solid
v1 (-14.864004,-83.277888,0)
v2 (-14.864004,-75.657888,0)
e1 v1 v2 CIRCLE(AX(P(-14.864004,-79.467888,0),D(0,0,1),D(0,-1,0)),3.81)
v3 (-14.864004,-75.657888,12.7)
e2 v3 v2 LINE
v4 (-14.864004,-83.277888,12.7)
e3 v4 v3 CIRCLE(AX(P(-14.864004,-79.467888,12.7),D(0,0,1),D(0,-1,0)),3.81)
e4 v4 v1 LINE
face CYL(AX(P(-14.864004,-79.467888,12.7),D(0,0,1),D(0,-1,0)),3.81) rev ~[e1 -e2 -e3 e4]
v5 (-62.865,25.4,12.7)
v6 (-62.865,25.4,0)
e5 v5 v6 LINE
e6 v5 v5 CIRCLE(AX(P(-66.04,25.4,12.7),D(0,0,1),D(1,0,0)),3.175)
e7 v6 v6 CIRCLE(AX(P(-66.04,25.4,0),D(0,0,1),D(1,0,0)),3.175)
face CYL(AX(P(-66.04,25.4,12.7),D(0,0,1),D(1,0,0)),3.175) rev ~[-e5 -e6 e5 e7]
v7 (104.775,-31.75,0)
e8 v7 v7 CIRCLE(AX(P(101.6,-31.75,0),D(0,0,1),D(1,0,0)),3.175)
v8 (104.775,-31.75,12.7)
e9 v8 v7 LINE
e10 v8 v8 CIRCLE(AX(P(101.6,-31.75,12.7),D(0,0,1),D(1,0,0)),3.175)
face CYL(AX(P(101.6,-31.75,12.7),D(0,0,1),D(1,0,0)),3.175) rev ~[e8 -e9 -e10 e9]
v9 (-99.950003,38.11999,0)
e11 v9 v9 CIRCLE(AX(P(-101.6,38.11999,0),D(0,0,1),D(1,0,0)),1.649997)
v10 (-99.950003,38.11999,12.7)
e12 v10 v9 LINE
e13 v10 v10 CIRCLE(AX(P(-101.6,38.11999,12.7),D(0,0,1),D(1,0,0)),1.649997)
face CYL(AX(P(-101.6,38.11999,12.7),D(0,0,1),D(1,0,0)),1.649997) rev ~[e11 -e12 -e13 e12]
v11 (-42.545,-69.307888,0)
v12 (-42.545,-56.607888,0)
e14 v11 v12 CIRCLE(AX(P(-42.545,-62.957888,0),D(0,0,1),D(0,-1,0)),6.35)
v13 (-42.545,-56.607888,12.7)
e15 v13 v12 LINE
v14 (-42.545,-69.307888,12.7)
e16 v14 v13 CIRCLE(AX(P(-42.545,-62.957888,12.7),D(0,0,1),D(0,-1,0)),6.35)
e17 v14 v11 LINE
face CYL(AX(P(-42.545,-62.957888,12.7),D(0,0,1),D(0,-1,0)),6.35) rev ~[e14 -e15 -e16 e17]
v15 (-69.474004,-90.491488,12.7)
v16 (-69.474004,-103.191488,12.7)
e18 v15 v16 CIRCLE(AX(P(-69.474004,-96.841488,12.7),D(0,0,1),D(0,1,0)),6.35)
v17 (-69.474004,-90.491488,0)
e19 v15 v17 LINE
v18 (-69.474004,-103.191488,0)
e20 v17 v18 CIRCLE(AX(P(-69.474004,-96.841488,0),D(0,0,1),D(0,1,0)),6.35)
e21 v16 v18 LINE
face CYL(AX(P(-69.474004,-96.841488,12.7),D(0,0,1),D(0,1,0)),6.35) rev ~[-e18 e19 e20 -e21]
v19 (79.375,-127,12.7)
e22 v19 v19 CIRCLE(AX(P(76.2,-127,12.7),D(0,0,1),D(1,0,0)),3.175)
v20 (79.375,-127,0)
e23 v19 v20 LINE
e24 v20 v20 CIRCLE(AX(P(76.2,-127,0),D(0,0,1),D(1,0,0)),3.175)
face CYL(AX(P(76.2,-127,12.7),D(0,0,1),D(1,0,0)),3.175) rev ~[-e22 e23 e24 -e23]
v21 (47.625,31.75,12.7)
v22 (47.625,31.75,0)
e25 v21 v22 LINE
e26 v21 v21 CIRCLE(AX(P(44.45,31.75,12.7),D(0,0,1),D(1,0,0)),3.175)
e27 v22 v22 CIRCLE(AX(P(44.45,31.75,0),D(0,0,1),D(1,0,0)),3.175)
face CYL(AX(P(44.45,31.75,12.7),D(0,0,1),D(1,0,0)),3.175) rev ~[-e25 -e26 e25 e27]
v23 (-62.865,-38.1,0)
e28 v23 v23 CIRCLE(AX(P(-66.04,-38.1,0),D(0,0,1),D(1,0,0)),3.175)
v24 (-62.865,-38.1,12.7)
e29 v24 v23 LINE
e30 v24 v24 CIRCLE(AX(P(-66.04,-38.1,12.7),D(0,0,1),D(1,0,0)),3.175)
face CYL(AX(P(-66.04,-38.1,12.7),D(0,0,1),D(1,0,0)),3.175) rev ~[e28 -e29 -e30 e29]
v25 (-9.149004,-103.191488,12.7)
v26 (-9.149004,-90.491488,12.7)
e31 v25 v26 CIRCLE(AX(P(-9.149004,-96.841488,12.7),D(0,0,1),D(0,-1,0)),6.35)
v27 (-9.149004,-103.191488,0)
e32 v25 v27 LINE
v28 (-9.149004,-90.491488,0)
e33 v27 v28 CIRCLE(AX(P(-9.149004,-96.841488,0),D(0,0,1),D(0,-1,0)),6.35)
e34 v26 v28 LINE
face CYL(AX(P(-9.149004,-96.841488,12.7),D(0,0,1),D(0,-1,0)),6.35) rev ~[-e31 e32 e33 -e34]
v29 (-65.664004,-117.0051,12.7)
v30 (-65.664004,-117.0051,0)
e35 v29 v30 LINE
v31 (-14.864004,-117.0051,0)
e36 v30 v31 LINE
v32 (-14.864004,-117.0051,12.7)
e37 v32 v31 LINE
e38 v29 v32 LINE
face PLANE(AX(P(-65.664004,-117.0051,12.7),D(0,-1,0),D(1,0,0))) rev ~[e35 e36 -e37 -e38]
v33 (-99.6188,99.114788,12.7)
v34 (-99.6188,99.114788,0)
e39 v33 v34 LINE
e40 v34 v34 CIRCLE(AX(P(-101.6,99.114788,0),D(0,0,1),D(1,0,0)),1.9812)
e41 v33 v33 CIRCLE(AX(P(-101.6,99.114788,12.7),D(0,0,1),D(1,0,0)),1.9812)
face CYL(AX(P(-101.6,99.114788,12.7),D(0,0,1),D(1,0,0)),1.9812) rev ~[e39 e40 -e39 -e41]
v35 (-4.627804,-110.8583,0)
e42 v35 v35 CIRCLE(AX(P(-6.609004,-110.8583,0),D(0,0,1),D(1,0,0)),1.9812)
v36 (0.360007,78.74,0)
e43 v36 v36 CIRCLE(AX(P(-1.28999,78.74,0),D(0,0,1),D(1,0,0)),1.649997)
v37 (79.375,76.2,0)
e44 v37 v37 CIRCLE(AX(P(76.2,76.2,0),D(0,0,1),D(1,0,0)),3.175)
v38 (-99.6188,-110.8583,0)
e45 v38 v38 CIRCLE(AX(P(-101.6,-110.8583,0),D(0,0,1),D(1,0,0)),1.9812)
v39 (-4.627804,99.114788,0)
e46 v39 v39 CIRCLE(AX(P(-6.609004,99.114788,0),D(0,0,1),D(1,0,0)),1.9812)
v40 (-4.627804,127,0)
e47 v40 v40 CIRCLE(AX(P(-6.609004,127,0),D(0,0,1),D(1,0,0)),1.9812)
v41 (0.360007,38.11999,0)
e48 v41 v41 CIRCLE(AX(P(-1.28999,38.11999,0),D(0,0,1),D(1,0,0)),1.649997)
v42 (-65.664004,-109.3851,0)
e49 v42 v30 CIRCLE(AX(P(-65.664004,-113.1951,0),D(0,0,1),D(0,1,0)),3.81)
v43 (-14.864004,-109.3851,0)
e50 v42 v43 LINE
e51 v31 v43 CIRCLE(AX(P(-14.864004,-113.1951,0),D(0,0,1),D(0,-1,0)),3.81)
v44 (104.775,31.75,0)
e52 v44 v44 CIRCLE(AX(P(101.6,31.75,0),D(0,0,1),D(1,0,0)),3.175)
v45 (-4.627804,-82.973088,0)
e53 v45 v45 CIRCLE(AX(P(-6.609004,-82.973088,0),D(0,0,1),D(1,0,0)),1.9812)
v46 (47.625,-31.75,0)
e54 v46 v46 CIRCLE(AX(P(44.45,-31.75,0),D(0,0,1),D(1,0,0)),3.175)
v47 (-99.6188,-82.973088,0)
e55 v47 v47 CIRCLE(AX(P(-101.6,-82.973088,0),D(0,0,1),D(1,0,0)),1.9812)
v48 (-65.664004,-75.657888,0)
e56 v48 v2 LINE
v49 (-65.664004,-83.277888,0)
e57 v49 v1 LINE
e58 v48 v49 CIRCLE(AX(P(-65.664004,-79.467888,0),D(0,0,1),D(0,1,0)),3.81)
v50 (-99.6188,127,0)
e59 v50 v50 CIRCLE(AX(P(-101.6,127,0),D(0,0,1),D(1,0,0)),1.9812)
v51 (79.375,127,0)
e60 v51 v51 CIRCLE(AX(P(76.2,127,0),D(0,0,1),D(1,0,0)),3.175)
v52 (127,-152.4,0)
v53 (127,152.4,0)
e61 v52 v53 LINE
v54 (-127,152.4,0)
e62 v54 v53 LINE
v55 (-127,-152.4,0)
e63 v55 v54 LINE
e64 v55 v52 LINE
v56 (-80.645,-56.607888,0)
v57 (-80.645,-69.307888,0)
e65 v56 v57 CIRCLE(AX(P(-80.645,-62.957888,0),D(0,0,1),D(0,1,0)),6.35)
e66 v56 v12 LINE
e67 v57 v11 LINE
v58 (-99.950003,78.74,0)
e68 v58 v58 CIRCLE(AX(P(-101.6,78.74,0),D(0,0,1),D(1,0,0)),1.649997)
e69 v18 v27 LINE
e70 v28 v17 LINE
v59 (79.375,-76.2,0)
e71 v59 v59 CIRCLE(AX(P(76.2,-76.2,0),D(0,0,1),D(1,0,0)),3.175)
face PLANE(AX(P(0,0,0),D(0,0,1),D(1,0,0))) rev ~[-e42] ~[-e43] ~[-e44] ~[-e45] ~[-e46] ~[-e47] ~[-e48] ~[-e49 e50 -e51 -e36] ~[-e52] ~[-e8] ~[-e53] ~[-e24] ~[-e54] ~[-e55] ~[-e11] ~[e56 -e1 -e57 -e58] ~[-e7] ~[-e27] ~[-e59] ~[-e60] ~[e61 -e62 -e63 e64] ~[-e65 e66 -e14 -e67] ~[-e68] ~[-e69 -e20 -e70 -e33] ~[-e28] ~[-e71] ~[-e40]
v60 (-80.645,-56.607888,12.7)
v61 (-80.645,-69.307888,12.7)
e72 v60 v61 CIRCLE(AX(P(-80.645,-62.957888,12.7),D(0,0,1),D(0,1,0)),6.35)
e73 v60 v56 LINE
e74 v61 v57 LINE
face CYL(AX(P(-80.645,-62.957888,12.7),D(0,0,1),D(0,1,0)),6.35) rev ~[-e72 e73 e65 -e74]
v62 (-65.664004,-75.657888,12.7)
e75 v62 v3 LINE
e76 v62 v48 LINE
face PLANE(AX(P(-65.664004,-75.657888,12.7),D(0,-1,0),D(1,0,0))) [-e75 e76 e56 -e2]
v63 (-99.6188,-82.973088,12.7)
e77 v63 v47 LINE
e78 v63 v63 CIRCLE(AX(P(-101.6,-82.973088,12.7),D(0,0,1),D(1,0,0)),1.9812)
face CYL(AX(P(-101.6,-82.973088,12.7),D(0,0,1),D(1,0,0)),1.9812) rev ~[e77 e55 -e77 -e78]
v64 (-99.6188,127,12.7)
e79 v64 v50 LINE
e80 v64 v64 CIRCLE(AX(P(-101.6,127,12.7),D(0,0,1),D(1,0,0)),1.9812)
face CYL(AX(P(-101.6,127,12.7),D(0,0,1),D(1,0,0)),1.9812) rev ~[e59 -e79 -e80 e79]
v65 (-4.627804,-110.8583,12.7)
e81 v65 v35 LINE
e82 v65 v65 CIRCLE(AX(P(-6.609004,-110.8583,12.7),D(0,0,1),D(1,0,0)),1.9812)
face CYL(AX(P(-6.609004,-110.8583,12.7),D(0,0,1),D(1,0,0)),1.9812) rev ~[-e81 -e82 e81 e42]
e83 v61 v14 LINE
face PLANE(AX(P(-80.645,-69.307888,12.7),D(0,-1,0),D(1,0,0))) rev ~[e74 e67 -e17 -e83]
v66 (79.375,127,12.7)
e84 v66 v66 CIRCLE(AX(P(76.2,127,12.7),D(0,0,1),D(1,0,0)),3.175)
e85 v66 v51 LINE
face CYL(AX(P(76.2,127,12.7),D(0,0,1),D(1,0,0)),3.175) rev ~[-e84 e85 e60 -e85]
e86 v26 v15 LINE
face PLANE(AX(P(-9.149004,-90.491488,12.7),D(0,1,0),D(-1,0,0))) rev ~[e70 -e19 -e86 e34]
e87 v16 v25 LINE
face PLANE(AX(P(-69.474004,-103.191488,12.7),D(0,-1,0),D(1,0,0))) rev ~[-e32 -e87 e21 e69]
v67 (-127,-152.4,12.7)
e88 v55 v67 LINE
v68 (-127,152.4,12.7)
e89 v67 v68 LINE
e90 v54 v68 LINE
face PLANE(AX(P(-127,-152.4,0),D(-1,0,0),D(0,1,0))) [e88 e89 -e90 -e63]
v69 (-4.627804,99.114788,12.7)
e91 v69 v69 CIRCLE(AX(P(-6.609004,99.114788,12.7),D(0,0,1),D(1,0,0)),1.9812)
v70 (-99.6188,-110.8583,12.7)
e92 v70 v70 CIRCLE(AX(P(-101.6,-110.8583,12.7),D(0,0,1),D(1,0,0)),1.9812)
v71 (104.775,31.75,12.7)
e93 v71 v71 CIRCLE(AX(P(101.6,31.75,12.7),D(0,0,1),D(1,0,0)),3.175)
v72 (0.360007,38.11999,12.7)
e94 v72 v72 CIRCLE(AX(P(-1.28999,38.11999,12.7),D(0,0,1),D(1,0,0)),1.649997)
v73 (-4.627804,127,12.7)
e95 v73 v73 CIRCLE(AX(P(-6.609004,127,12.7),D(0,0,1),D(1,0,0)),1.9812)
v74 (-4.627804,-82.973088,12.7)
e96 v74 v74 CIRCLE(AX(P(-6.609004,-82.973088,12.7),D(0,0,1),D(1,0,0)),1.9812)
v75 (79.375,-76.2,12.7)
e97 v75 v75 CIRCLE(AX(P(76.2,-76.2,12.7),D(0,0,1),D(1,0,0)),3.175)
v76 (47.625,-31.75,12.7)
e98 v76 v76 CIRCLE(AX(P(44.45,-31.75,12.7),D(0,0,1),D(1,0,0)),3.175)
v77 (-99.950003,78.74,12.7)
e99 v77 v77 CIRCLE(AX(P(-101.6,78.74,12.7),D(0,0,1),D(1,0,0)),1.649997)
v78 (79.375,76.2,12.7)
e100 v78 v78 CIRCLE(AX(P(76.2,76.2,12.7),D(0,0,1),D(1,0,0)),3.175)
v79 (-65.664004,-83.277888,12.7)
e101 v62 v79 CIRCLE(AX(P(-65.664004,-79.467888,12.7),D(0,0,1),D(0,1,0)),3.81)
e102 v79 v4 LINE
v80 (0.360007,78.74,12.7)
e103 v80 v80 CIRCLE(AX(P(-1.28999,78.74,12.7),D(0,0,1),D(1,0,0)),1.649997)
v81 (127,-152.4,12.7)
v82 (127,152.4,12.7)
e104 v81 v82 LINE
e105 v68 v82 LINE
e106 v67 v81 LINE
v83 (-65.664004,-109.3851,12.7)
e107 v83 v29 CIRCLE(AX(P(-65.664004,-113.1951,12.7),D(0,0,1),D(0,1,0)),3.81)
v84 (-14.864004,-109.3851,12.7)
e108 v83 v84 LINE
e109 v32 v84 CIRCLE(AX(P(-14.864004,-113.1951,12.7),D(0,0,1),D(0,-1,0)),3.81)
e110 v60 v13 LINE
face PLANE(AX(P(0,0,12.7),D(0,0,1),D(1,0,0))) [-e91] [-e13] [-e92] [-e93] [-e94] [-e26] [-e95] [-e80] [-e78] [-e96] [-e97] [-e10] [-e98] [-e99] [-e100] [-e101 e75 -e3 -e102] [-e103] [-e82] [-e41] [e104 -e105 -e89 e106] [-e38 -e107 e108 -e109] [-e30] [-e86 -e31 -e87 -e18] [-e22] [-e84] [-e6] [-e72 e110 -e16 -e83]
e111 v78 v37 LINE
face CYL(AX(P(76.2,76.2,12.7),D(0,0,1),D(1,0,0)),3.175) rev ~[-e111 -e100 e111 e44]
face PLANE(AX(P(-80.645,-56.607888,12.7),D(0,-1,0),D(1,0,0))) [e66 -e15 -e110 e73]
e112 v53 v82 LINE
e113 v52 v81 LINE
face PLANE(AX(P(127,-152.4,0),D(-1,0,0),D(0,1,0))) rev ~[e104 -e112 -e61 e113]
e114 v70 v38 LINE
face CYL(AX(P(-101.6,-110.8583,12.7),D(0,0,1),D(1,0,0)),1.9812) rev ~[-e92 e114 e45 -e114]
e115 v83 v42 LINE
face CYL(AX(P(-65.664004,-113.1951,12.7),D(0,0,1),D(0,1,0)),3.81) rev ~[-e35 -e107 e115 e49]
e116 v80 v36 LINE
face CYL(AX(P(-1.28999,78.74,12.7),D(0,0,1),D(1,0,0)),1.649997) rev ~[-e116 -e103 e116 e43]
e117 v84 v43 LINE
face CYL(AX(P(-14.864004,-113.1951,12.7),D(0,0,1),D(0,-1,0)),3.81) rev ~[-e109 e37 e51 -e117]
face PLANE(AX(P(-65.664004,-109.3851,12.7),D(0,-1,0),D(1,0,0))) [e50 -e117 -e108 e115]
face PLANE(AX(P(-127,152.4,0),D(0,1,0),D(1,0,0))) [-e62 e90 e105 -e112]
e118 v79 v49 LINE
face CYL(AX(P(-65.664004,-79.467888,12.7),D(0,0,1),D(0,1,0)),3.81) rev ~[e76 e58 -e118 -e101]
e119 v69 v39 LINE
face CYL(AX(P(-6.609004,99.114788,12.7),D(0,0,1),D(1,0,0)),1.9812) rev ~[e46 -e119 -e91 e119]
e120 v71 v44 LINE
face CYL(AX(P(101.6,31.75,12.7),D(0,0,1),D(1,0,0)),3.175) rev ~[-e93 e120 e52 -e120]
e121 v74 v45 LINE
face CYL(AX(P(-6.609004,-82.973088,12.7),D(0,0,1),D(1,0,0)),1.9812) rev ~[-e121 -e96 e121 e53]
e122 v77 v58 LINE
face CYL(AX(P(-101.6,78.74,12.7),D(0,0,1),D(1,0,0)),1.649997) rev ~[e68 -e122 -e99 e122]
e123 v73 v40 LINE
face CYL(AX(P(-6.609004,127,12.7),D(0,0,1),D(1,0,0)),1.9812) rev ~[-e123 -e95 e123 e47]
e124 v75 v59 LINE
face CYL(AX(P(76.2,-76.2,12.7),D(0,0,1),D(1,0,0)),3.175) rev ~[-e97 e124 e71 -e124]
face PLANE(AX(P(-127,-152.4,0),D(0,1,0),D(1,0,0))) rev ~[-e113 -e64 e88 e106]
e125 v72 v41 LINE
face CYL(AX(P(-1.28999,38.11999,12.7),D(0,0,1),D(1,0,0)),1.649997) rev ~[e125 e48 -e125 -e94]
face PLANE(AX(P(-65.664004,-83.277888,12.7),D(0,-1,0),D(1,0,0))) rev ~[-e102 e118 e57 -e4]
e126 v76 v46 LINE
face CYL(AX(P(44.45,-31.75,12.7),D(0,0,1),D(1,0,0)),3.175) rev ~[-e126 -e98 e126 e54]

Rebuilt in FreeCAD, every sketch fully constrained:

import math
import FreeCAD as App
import Part
import Sketcher
Q = App.Units.Quantity


def add_polygon(sketch, points):
    """Adds a closed chain of lines whose ends are joined by coincident constraints."""
    first, n = sketch.GeometryCount, len(points)
    for a, b in zip(points, points[1:] + points[:1]):
        sketch.addGeometry(Part.LineSegment(App.Vector(*a, 0), App.Vector(*b, 0)), False)
    for i in range(n):
        sketch.addConstraint(Sketcher.Constraint("Coincident", first + i, 2, first + (i + 1) % n, 1))

doc = App.newDocument("Part")
body = doc.addObject("PartDesign::Body", "Body")

# Sketch on XY plane
sketch1 = body.newObject("Sketcher::SketchObject", "Sketch")
sketch1.AttachmentSupport = (doc.getObject("XY_Plane"), [""])
sketch1.MapMode = "FlatFace"
add_polygon(sketch1, [(-127, 152), (-127, -152), (127, -152), (127, 152)])  # lines 0-3
sketch1.addConstraint([
    Sketcher.Constraint("Vertical", 0),
    Sketcher.Constraint("Horizontal", 1),
    Sketcher.Constraint("Vertical", 2),
    Sketcher.Constraint("Horizontal", 3),
    Sketcher.Constraint("Symmetric", 0, 2, 2, 2, -1, 1),
    Sketcher.Constraint("DistanceX", 1, 1, 1, 2, Q("10 in")),
    Sketcher.Constraint("DistanceY", 0, 2, 0, 1, Q("12 in")),
])
pad1 = body.newObject("PartDesign::Pad", "Pad")
pad1.Profile = sketch1
pad1.Length = Q("0.5 in")

# Sketch on XY plane
sketch2 = body.newObject("Sketcher::SketchObject", "Sketch001")
sketch2.AttachmentSupport = (doc.getObject("XY_Plane"), [""])
sketch2.MapMode = "FlatFace"
sketch2.AttachmentOffset = App.Placement(App.Vector(0, 0, 0.5 * 25.4), App.Rotation())
sketch2.addGeometry([
    Part.Circle(App.Vector(-101.6, 127, 0), App.Vector(0, 0, 1), 2),  # 0
    Part.Circle(App.Vector(-101.6, 99.1, 0), App.Vector(0, 0, 1), 2),  # 1
    Part.Circle(App.Vector(-6.6, 127, 0), App.Vector(0, 0, 1), 2),  # 2
    Part.Circle(App.Vector(-6.6, 99.1, 0), App.Vector(0, 0, 1), 2),  # 3
    Part.Circle(App.Vector(-101.6, -83, 0), App.Vector(0, 0, 1), 2),  # 4
    Part.Circle(App.Vector(-6.6, -83, 0), App.Vector(0, 0, 1), 2),  # 5
    Part.Circle(App.Vector(-6.6, -110.9, 0), App.Vector(0, 0, 1), 2),  # 6
    Part.Circle(App.Vector(-101.6, -110.9, 0), App.Vector(0, 0, 1), 2),  # 7
    Part.Circle(App.Vector(-101.6, 78.7, 0), App.Vector(0, 0, 1), 1.6),  # 8
    Part.Circle(App.Vector(-101.6, 38.1, 0), App.Vector(0, 0, 1), 1.6),  # 9
    Part.Circle(App.Vector(-66, 25.4, 0), App.Vector(0, 0, 1), 3.2),  # 10
    Part.Circle(App.Vector(-66, -38.1, 0), App.Vector(0, 0, 1), 3.2),  # 11
    Part.Circle(App.Vector(76.2, -76.2, 0), App.Vector(0, 0, 1), 3.2),  # 12
    Part.Circle(App.Vector(76.2, -127, 0), App.Vector(0, 0, 1), 3.2),  # 13
    Part.Circle(App.Vector(76.2, 127, 0), App.Vector(0, 0, 1), 3.2),  # 14
    Part.Circle(App.Vector(76.2, 76.2, 0), App.Vector(0, 0, 1), 3.2),  # 15
    Part.Circle(App.Vector(44.5, 31.8, 0), App.Vector(0, 0, 1), 3.2),  # 16
    Part.Circle(App.Vector(101.6, 31.8, 0), App.Vector(0, 0, 1), 3.2),  # 17
    Part.Circle(App.Vector(44.5, -31.8, 0), App.Vector(0, 0, 1), 3.2),  # 18
    Part.Circle(App.Vector(101.6, -31.8, 0), App.Vector(0, 0, 1), 3.2),  # 19
    Part.LineSegment(App.Vector(-9.1, -90.5, 0), App.Vector(-69.5, -90.5, 0)),  # 20
    Part.ArcOfCircle(Part.Circle(App.Vector(-69.5, -96.8, 0), App.Vector(0, 0, 1), 6.3), math.radians(90), math.radians(270)),  # 21
    Part.LineSegment(App.Vector(-69.5, -103.2, 0), App.Vector(-9.1, -103.2, 0)),  # 22
    Part.ArcOfCircle(Part.Circle(App.Vector(-9.1, -96.8, 0), App.Vector(0, 0, 1), 6.3), math.radians(-90), math.radians(90)),  # 23
    Part.LineSegment(App.Vector(-65.7, -117, 0), App.Vector(-14.9, -117, 0)),  # 24
    Part.ArcOfCircle(Part.Circle(App.Vector(-14.9, -113.2, 0), App.Vector(0, 0, 1), 3.8), math.radians(-90), math.radians(90)),  # 25
    Part.LineSegment(App.Vector(-14.9, -109.4, 0), App.Vector(-65.7, -109.4, 0)),  # 26
    Part.ArcOfCircle(Part.Circle(App.Vector(-65.7, -113.2, 0), App.Vector(0, 0, 1), 3.8), math.radians(90), math.radians(270)),  # 27
    Part.LineSegment(App.Vector(-80.6, -69.3, 0), App.Vector(-42.5, -69.3, 0)),  # 28
    Part.ArcOfCircle(Part.Circle(App.Vector(-42.5, -63, 0), App.Vector(0, 0, 1), 6.3), math.radians(-90), math.radians(90)),  # 29
    Part.LineSegment(App.Vector(-42.5, -56.6, 0), App.Vector(-80.6, -56.6, 0)),  # 30
    Part.ArcOfCircle(Part.Circle(App.Vector(-80.6, -63, 0), App.Vector(0, 0, 1), 6.3), math.radians(90), math.radians(270)),  # 31
    Part.LineSegment(App.Vector(-65.7, -83.3, 0), App.Vector(-14.9, -83.3, 0)),  # 32
    Part.ArcOfCircle(Part.Circle(App.Vector(-14.9, -79.5, 0), App.Vector(0, 0, 1), 3.8), math.radians(-90), math.radians(90)),  # 33
    Part.LineSegment(App.Vector(-14.9, -75.7, 0), App.Vector(-65.7, -75.7, 0)),  # 34
    Part.ArcOfCircle(Part.Circle(App.Vector(-65.7, -79.5, 0), App.Vector(0, 0, 1), 3.8), math.radians(90), math.radians(270)),  # 35
    Part.Circle(App.Vector(-1.3, 78.7, 0), App.Vector(0, 0, 1), 1.6),  # 36
    Part.Circle(App.Vector(-1.3, 38.1, 0), App.Vector(0, 0, 1), 1.6),  # 37
], False)
sketch2.addConstraint([
    Sketcher.Constraint("Tangent", 20, 2, 21, 1),
    Sketcher.Constraint("Tangent", 21, 2, 22, 1),
    Sketcher.Constraint("Tangent", 22, 2, 23, 1),
    Sketcher.Constraint("Tangent", 23, 2, 20, 1),
    Sketcher.Constraint("Tangent", 24, 2, 25, 1),
    Sketcher.Constraint("Tangent", 25, 2, 26, 1),
    Sketcher.Constraint("Tangent", 26, 2, 27, 1),
    Sketcher.Constraint("Tangent", 27, 2, 24, 1),
    Sketcher.Constraint("Tangent", 28, 2, 29, 1),
    Sketcher.Constraint("Tangent", 29, 2, 30, 1),
    Sketcher.Constraint("Tangent", 30, 2, 31, 1),
    Sketcher.Constraint("Tangent", 31, 2, 28, 1),
    Sketcher.Constraint("Tangent", 32, 2, 33, 1),
    Sketcher.Constraint("Tangent", 33, 2, 34, 1),
    Sketcher.Constraint("Tangent", 34, 2, 35, 1),
    Sketcher.Constraint("Tangent", 35, 2, 32, 1),
    Sketcher.Constraint("Horizontal", 20),
    Sketcher.Constraint("Horizontal", 22),
    Sketcher.Constraint("Horizontal", 24),
    Sketcher.Constraint("Horizontal", 26),
    Sketcher.Constraint("Horizontal", 28),
    Sketcher.Constraint("Horizontal", 30),
    Sketcher.Constraint("Horizontal", 32),
    Sketcher.Constraint("Horizontal", 34),
    Sketcher.Constraint("Equal", 0, 1),
    Sketcher.Constraint("Equal", 1, 2),
    Sketcher.Constraint("Equal", 2, 3),
    Sketcher.Constraint("Equal", 3, 4),
    Sketcher.Constraint("Equal", 4, 5),
    Sketcher.Constraint("Equal", 5, 6),
    Sketcher.Constraint("Equal", 6, 7),
    Sketcher.Constraint("Equal", 8, 9),
    Sketcher.Constraint("Equal", 10, 11),
    Sketcher.Constraint("Equal", 11, 12),
    Sketcher.Constraint("Equal", 12, 13),
    Sketcher.Constraint("Equal", 13, 14),
    Sketcher.Constraint("Equal", 14, 15),
    Sketcher.Constraint("Equal", 15, 16),
    Sketcher.Constraint("Equal", 16, 17),
    Sketcher.Constraint("Equal", 17, 18),
    Sketcher.Constraint("Equal", 18, 19),
    Sketcher.Constraint("Equal", 23, 29),
    Sketcher.Constraint("Equal", 27, 33),
    Sketcher.Constraint("Equal", 9, 36),
    Sketcher.Constraint("Equal", 36, 37),
    Sketcher.Constraint("Symmetric", 13, 3, 14, 3, -1),
    Sketcher.Constraint("Symmetric", 12, 3, 15, 3, -1),
    Sketcher.Constraint("Symmetric", 16, 3, 18, 3, -1),
    Sketcher.Constraint("Symmetric", 17, 3, 19, 3, -1),
    Sketcher.Constraint("Horizontal", 0, 3, 2, 3),
    Sketcher.Constraint("Horizontal", 1, 3, 3, 3),
    Sketcher.Constraint("Horizontal", 4, 3, 5, 3),
    Sketcher.Constraint("Horizontal", 6, 3, 7, 3),
    Sketcher.Constraint("Horizontal", 2, 3, 14, 3),
    Sketcher.Constraint("Horizontal", 16, 3, 17, 3),
    Sketcher.Constraint("Horizontal", 8, 3, 36, 3),
    Sketcher.Constraint("Horizontal", 9, 3, 37, 3),
    Sketcher.Constraint("Vertical", 0, 3, 1, 3),
    Sketcher.Constraint("Vertical", 2, 3, 3, 3),
    Sketcher.Constraint("Vertical", 1, 3, 4, 3),
    Sketcher.Constraint("Vertical", 3, 3, 5, 3),
    Sketcher.Constraint("Vertical", 5, 3, 6, 3),
    Sketcher.Constraint("Vertical", 4, 3, 7, 3),
    Sketcher.Constraint("Vertical", 7, 3, 8, 3),
    Sketcher.Constraint("Vertical", 8, 3, 9, 3),
    Sketcher.Constraint("Vertical", 10, 3, 11, 3),
    Sketcher.Constraint("Vertical", 12, 3, 13, 3),
    Sketcher.Constraint("Vertical", 25, 3, 33, 3),
    Sketcher.Constraint("Vertical", 27, 3, 35, 3),
    Sketcher.Constraint("Vertical", 36, 3, 37, 3),
    Sketcher.Constraint("Diameter", 10, Q("0.25 in")),
    Sketcher.Constraint("DistanceX", 24, 1, 24, 2, Q("2 in")),
    Sketcher.Constraint("Radius", 21, Q("0.25 in")),
    Sketcher.Constraint("Radius", 25, Q("0.15 in")),
    Sketcher.Constraint("Diameter", 0, Q("0.156 in")),
    Sketcher.Constraint("DistanceX", 28, 1, 28, 2, Q("1.5 in")),
    Sketcher.Constraint("DistanceX", 0, 3, -1, 1, Q("4 in")),
    Sketcher.Constraint("DistanceY", -1, 1, 0, 3, Q("5 in")),
    Sketcher.Constraint("DistanceY", -1, 1, 10, 3, Q("1 in")),
    Sketcher.Constraint("DistanceX", -1, 1, 12, 3, Q("3 in")),
    Sketcher.Constraint("DistanceY", 12, 3, -1, 1, Q("3 in")),
    Sketcher.Constraint("DistanceX", -1, 1, 17, 3, Q("4 in")),
    Sketcher.Constraint("DistanceY", -1, 1, 8, 3, Q("3.1 in")),
    Sketcher.Constraint("DistanceX", 10, 3, -1, 1, Q("2.6 in")),
    Sketcher.Constraint("DistanceY", 11, 3, -1, 1, Q("1.5 in")),
    Sketcher.Constraint("DistanceY", 18, 3, 16, 3, Q("2.5 in")),
    Sketcher.Constraint("DistanceX", 23, 3, 5, 3, Q("0.1 in")),
    Sketcher.Constraint("DistanceY", 35, 3, 28, 2, Q("0.4 in")),
    Sketcher.Constraint("DistanceX", 20, 2, 20, 1, Q("2.375 in")),
    Sketcher.Constraint("DistanceX", -1, 1, 16, 3, Q("1.75 in")),
    Sketcher.Constraint("DistanceX", 21, 3, 25, 3, Q("2.15 in")),
    Sketcher.Constraint("DistanceX", 29, 3, -1, 1, Q("1.675 in")),
    Sketcher.Constraint("DistanceY", 21, 3, 4, 3, Q("0.546 in")),
    Sketcher.Constraint("DistanceY", 25, 3, 6, 3, Q("0.092 in")),
    Sketcher.Constraint("DistanceY", 5, 3, 29, 3, Q("0.788 in")),
    Sketcher.Constraint("Diameter", 8, 3.299994),
    Sketcher.Constraint("DistanceY", 6, 3, -1, 1, Q("4.3645 in")),
    Sketcher.Constraint("DistanceY", 9, 3, 1, 3, 60.994798),
    Sketcher.Constraint("DistanceY", -1, 1, 1, 3, 99.114788),
    Sketcher.Constraint("DistanceY", 4, 3, -1, 1, 82.973088),
    Sketcher.Constraint("DistanceX", 36, 3, -1, 1, 1.28999),
    Sketcher.Constraint("DistanceX", 2, 3, -1, 1, 6.609004),
])
pocket1 = body.newObject("PartDesign::Pocket", "Pocket")
pocket1.Profile = sketch2
pocket1.Length = Q("1 in")

doc.recompute()
